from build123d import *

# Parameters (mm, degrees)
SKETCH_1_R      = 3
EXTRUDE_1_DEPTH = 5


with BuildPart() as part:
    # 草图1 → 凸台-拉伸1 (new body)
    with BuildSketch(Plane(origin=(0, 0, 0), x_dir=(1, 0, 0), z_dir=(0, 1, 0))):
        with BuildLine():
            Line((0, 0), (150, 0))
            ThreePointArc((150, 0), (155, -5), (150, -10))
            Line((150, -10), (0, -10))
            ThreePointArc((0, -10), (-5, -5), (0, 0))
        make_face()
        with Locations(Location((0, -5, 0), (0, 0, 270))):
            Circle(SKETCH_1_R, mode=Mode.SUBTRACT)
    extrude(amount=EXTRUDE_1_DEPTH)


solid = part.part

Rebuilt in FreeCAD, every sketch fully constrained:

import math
import FreeCAD as App
import Part
import Sketcher
Q = App.Units.Quantity

doc = App.newDocument("Part")
params = doc.addObject("Spreadsheet::Sheet", "Params")
for row, (alias, value) in enumerate([
    ("sketch1_diameter", "6 mm"),
    ("sketch1_radius", "5 mm"),
    ("sketch1_width", "150 mm"),
    ("pad1_length", "5 mm"),
], start=1):
    params.set(f"A{row}", alias)
    params.set(f"B{row}", "=" + value)
    params.setAlias(f"B{row}", alias)

body = doc.addObject("PartDesign::Body", "Body")

sketch1 = body.newObject("Sketcher::SketchObject", "Sketch")
sketch1.AttachmentSupport = (doc.getObject("XZ_Plane"), [""])
sketch1.MapMode = "FlatFace"
sketch1.addGeometry(Part.LineSegment(App.Vector(150, 0, 0), App.Vector(0, 0, 0)), False)
sketch1.addGeometry(Part.ArcOfCircle(Part.Circle(App.Vector(0, 5, 0), App.Vector(0, 0, 1), 5), math.radians(90), math.radians(270)), False)
sketch1.addGeometry(Part.LineSegment(App.Vector(0, 10, 0), App.Vector(150, 10, 0)), False)
sketch1.addGeometry(Part.ArcOfCircle(Part.Circle(App.Vector(150, 5, 0), App.Vector(0, 0, 1), 5), math.radians(-90), math.radians(90)), False)
sketch1.addGeometry(Part.Circle(App.Vector(0, 5, 0), App.Vector(0, 0, 1), 3), False)
sketch1.addConstraint(Sketcher.Constraint("Tangent", 0, 2, 1, 2))
sketch1.addConstraint(Sketcher.Constraint("Tangent", 1, 1, 2, 1))
sketch1.addConstraint(Sketcher.Constraint("Tangent", 2, 2, 3, 2))
sketch1.addConstraint(Sketcher.Constraint("Tangent", 3, 1, 0, 1))
sketch1.addConstraint(Sketcher.Constraint("Horizontal", 0))
sketch1.addConstraint(Sketcher.Constraint("Horizontal", 2))
sketch1.addConstraint(Sketcher.Constraint("Coincident", 0, 2, -1, 1))
sketch1.addConstraint(Sketcher.Constraint("Coincident", 4, 3, 1, 3))
sketch1.addConstraint(Sketcher.Constraint("Diameter", 4, Q("6 mm")))
sketch1.addConstraint(Sketcher.Constraint("Radius", 1, Q("5 mm")))
sketch1.addConstraint(Sketcher.Constraint("DistanceX", 0, 2, 0, 1, Q("150 mm")))
sketch1.setExpression("Constraints[8]", "Params.sketch1_diameter")
sketch1.setExpression("Constraints[9]", "Params.sketch1_radius")
sketch1.setExpression("Constraints[10]", "Params.sketch1_width")
pad1 = body.newObject("PartDesign::Pad", "Pad")
pad1.Profile = sketch1
pad1.setExpression("Length", "Params.pad1_length")
pad1.Reversed = True

doc.recompute()
